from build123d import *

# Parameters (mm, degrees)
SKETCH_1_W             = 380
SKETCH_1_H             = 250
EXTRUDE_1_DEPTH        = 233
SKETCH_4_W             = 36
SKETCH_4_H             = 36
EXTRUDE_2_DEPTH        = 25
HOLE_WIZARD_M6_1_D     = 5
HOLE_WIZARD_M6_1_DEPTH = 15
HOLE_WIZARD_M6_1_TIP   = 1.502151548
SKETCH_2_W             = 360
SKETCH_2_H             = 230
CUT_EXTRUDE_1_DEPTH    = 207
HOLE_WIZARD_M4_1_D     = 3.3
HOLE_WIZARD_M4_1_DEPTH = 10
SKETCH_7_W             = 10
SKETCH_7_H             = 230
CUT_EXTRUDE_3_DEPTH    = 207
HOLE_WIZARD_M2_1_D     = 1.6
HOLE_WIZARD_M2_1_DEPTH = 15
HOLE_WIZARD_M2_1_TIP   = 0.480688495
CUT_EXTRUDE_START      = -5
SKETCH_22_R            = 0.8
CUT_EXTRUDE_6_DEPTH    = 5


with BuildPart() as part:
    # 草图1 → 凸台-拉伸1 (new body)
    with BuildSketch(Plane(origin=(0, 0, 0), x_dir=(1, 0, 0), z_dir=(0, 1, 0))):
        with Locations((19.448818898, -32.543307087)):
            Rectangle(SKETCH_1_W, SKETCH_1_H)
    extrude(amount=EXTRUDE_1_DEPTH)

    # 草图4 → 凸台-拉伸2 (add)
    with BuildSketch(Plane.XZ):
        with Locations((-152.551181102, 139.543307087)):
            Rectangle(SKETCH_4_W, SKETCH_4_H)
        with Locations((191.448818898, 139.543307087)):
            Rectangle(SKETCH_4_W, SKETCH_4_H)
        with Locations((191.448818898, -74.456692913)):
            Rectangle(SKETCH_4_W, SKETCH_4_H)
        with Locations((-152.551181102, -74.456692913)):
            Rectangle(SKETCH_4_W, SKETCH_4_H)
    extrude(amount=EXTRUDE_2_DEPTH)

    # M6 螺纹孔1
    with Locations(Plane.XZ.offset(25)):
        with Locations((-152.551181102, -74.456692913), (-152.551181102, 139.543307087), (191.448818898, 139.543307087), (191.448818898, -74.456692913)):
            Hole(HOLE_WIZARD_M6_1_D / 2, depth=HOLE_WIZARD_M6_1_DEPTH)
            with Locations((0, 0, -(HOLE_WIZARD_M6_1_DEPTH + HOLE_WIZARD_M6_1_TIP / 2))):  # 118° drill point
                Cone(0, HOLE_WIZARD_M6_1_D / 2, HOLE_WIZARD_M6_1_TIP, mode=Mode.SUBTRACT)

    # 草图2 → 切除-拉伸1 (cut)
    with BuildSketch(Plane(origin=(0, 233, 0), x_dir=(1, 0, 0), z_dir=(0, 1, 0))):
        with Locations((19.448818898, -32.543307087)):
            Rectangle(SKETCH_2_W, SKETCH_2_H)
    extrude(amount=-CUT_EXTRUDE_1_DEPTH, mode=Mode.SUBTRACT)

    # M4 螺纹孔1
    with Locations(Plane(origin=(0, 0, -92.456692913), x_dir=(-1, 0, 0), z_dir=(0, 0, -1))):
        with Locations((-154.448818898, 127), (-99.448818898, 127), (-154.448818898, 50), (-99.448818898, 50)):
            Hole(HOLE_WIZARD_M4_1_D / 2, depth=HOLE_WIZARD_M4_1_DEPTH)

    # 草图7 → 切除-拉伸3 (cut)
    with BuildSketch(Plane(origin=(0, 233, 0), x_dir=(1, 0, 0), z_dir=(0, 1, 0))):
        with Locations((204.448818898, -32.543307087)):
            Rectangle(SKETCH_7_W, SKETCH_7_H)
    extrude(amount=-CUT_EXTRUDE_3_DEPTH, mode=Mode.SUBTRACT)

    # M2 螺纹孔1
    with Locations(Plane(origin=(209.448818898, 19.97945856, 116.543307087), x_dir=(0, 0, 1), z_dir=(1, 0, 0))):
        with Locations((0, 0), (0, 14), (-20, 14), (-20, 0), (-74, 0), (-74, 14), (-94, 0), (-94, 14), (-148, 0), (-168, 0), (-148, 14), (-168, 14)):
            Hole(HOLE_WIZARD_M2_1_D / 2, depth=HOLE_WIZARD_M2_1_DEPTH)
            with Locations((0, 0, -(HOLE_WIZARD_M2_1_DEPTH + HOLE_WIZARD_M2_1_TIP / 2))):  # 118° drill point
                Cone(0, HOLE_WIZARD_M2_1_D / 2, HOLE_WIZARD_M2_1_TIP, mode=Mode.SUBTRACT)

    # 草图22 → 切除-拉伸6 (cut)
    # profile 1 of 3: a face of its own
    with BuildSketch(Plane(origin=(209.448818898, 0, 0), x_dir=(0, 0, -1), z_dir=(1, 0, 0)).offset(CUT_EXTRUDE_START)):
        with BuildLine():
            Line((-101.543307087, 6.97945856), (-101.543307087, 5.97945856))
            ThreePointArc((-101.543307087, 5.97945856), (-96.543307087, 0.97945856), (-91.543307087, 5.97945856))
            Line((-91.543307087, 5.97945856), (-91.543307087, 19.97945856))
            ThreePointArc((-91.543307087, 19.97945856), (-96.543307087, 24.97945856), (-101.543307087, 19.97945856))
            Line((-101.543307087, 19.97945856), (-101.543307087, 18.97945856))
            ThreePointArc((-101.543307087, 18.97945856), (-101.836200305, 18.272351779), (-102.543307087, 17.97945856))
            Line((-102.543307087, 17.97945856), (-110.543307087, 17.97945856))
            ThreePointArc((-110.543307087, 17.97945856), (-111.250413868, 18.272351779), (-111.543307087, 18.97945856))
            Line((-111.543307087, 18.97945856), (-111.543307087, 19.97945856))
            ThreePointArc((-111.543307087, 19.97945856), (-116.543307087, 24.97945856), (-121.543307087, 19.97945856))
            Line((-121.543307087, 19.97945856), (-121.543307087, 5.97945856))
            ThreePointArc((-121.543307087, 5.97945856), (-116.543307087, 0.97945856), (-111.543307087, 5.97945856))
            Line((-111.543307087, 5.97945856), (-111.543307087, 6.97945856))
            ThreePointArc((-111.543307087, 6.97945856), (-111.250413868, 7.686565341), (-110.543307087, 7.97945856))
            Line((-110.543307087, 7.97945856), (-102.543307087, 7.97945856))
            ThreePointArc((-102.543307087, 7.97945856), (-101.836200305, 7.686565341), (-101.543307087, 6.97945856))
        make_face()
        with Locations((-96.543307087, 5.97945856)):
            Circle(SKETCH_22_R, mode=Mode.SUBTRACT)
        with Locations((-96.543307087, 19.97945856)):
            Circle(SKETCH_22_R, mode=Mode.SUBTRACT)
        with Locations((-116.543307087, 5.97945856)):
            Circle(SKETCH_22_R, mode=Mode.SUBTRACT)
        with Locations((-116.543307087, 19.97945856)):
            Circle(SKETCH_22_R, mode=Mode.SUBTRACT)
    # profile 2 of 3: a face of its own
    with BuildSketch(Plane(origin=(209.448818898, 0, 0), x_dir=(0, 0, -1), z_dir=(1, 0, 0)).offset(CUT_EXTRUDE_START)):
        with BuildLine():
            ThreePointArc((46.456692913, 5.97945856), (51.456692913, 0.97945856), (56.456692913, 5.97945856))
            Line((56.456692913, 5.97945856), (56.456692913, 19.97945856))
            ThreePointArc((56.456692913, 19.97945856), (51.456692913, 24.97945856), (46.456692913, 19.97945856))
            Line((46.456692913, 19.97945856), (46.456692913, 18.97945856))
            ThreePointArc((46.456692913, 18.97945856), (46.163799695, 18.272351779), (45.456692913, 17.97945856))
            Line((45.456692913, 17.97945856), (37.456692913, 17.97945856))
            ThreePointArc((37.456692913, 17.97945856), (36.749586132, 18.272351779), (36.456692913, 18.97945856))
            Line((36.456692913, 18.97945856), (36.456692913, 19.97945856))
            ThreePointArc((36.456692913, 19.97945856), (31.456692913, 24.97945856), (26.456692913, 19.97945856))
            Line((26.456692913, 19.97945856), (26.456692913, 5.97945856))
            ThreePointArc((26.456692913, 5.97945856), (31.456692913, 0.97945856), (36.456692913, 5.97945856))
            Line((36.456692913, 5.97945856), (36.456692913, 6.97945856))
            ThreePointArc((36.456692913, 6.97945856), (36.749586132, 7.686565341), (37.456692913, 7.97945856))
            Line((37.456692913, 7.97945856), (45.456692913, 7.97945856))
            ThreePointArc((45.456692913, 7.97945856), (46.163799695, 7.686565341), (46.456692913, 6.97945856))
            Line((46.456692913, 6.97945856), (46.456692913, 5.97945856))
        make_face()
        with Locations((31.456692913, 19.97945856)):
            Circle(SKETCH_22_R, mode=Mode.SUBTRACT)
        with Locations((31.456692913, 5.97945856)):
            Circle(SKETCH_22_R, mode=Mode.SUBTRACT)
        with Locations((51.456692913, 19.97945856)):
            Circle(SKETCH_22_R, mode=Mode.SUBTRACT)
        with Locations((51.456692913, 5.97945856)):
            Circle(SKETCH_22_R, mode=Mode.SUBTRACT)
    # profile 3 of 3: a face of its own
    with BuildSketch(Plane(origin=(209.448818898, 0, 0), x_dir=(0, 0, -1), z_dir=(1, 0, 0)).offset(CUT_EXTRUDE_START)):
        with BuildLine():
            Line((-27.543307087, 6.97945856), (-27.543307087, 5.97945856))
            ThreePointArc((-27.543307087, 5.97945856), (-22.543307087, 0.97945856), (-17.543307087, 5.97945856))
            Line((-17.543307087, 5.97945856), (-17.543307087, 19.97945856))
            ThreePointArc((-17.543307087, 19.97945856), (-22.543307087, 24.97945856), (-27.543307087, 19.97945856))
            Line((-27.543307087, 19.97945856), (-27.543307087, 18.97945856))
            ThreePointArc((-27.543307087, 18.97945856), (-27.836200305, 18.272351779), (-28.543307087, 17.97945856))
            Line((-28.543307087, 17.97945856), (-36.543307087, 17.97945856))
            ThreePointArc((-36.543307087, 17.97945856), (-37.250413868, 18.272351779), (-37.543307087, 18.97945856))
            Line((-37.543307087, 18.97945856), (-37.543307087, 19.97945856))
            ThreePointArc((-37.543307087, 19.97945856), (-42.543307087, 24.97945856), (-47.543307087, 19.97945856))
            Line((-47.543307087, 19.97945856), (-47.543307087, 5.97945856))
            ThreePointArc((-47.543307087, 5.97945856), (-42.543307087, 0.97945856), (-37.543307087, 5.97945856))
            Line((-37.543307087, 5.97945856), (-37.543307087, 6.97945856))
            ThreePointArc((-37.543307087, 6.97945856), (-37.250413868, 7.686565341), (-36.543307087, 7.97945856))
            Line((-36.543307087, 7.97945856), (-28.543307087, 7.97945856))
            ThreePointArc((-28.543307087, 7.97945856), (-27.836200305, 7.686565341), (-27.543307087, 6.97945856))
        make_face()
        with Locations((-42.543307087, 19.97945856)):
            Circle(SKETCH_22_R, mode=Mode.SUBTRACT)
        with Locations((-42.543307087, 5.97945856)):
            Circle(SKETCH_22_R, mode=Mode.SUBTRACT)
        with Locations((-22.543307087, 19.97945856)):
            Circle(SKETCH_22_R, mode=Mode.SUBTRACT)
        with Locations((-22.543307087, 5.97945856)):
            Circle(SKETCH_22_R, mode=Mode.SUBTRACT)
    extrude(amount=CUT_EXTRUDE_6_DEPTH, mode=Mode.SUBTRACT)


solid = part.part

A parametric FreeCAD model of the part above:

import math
import FreeCAD as App
import Part
import Sketcher
Q = App.Units.Quantity


def add_polygon(sketch, points):
    """Adds a closed chain of lines whose ends are joined by coincident constraints."""
    first, n = sketch.GeometryCount, len(points)
    for a, b in zip(points, points[1:] + points[:1]):
        sketch.addGeometry(Part.LineSegment(App.Vector(*a, 0), App.Vector(*b, 0)), False)
    for i in range(n):
        sketch.addConstraint(Sketcher.Constraint("Coincident", first + i, 2, first + (i + 1) % n, 1))

doc = App.newDocument("Part")
body = doc.addObject("PartDesign::Body", "Body")

sketch1 = body.newObject("Sketcher::SketchObject", "Sketch")
sketch1.AttachmentSupport = (doc.getObject("XZ_Plane"), [""])
sketch1.MapMode = "FlatFace"
add_polygon(sketch1, [(-171, -92), (-171, 158), (209, 158), (209, -92)])
sketch1.addConstraint(Sketcher.Constraint("Vertical", 0))
sketch1.addConstraint(Sketcher.Constraint("Horizontal", 1))
sketch1.addConstraint(Sketcher.Constraint("Vertical", 2))
sketch1.addConstraint(Sketcher.Constraint("Horizontal", 3))
sketch1.addConstraint(Sketcher.Constraint("DistanceX", 1, 1, 1, 2, Q("380 mm")))
sketch1.addConstraint(Sketcher.Constraint("DistanceY", 0, 1, 0, 2, Q("250 mm")))
sketch1.addConstraint(Sketcher.Constraint("DistanceX", 0, 2, -1, 1, Q("170.551181 mm")))
sketch1.addConstraint(Sketcher.Constraint("DistanceY", -1, 1, 0, 2, Q("157.543307 mm")))
pad1 = body.newObject("PartDesign::Pad", "Pad")
pad1.Profile = sketch1
pad1.Length = 233
pad1.Reversed = True

sketch2 = body.newObject("Sketcher::SketchObject", "Sketch001")
sketch2.AttachmentSupport = (doc.getObject("XZ_Plane"), [""])
sketch2.MapMode = "FlatFace"
add_polygon(sketch2, [(-171, 158), (-171, 122), (-135, 122), (-135, 158)])
add_polygon(sketch2, [(173, 158), (173, 122), (209, 122), (209, 158)])
add_polygon(sketch2, [(173, -56), (173, -92), (209, -92), (209, -56)])
add_polygon(sketch2, [(-171, -56), (-171, -92), (-135, -92), (-135, -56)])
sketch2.addConstraint(Sketcher.Constraint("Vertical", 0))
sketch2.addConstraint(Sketcher.Constraint("Horizontal", 1))
sketch2.addConstraint(Sketcher.Constraint("Vertical", 2))
sketch2.addConstraint(Sketcher.Constraint("Horizontal", 3))
sketch2.addConstraint(Sketcher.Constraint("Vertical", 4))
sketch2.addConstraint(Sketcher.Constraint("Horizontal", 5))
sketch2.addConstraint(Sketcher.Constraint("Vertical", 6))
sketch2.addConstraint(Sketcher.Constraint("Horizontal", 7))
sketch2.addConstraint(Sketcher.Constraint("Vertical", 8))
sketch2.addConstraint(Sketcher.Constraint("Horizontal", 9))
sketch2.addConstraint(Sketcher.Constraint("Vertical", 10))
sketch2.addConstraint(Sketcher.Constraint("Horizontal", 11))
sketch2.addConstraint(Sketcher.Constraint("Vertical", 12))
sketch2.addConstraint(Sketcher.Constraint("Horizontal", 13))
sketch2.addConstraint(Sketcher.Constraint("Vertical", 14))
sketch2.addConstraint(Sketcher.Constraint("Horizontal", 15))
sketch2.addConstraint(Sketcher.Constraint("Horizontal", 1, 2, 4, 2))
sketch2.addConstraint(Sketcher.Constraint("Horizontal", 3, 2, 6, 2))
sketch2.addConstraint(Sketcher.Constraint("Horizontal", 9, 2, 12, 2))
sketch2.addConstraint(Sketcher.Constraint("Horizontal", 11, 2, 14, 2))
sketch2.addConstraint(Sketcher.Constraint("Vertical", 7, 2, 8, 2))
sketch2.addConstraint(Sketcher.Constraint("Vertical", 6, 2, 9, 2))
sketch2.addConstraint(Sketcher.Constraint("Vertical", 3, 2, 12, 2))
sketch2.addConstraint(Sketcher.Constraint("Vertical", 2, 2, 13, 2))
sketch2.addConstraint(Sketcher.Constraint("Equal", 3, 5))
sketch2.addConstraint(Sketcher.Constraint("Equal", 15, 0))
sketch2.addConstraint(Sketcher.Constraint("Equal", 6, 8))
sketch2.addConstraint(Sketcher.Constraint("DistanceX", 1, 1, 1, 2, Q("36 mm")))
sketch2.addConstraint(Sketcher.Constraint("DistanceX", 1, 2, 4, 2, Q("308 mm")))
sketch2.addConstraint(Sketcher.Constraint("DistanceY", 8, 2, 4, 2, Q("214 mm")))
sketch2.addConstraint(Sketcher.Constraint("DistanceX", 0, 2, -1, 1, Q("170.551181 mm")))
sketch2.addConstraint(Sketcher.Constraint("DistanceY", -1, 1, 0, 2, Q("121.543307 mm")))
pad2 = body.newObject("PartDesign::Pad", "Pad001")
pad2.Profile = sketch2
pad2.Length = 25

sketch3 = body.newObject("Sketcher::SketchObject", "Sketch002")
sketch3.AttachmentSupport = (doc.getObject("XZ_Plane"), [""])
sketch3.MapMode = "FlatFace"
sketch3.AttachmentOffset = App.Placement(App.Vector(0, 0, 25), App.Rotation())
sketch3.addGeometry(Part.Circle(App.Vector(-152.6, -74.5, 0), App.Vector(0, 0, 1), 2.5), False)
sketch3.addGeometry(Part.Circle(App.Vector(-152.6, 139.5, 0), App.Vector(0, 0, 1), 2.5), False)
sketch3.addGeometry(Part.Circle(App.Vector(191.4, 139.5, 0), App.Vector(0, 0, 1), 2.5), False)
sketch3.addGeometry(Part.Circle(App.Vector(191.4, -74.5, 0), App.Vector(0, 0, 1), 2.5), False)
sketch3.addConstraint(Sketcher.Constraint("Equal", 0, 1))
sketch3.addConstraint(Sketcher.Constraint("Equal", 1, 2))
sketch3.addConstraint(Sketcher.Constraint("Equal", 2, 3))
sketch3.addConstraint(Sketcher.Constraint("Horizontal", 1, 3, 2, 3))
sketch3.addConstraint(Sketcher.Constraint("Horizontal", 0, 3, 3, 3))
sketch3.addConstraint(Sketcher.Constraint("Vertical", 0, 3, 1, 3))
sketch3.addConstraint(Sketcher.Constraint("Vertical", 2, 3, 3, 3))
sketch3.addConstraint(Sketcher.Constraint("Diameter", 0, Q("5 mm")))
sketch3.addConstraint(Sketcher.Constraint("DistanceY", 0, 3, 1, 3, Q("214 mm")))
sketch3.addConstraint(Sketcher.Constraint("DistanceX", 1, 3, 2, 3, Q("344 mm")))
sketch3.addConstraint(Sketcher.Constraint("DistanceX", 0, 3, -1, 1, Q("152.551181 mm")))
sketch3.addConstraint(Sketcher.Constraint("DistanceY", 0, 3, -1, 1, Q("74.456693 mm")))
doc.recompute()
hole = body.newObject("PartDesign::Hole", "Hole")
hole.Profile = sketch3
hole.ThreadType = "None"
hole.Diameter = 5
hole.DepthType = "Dimension"
hole.Depth = 15
hole.DrillPoint = "Angled"
hole.DrillPointAngle = 118

sketch4 = body.newObject("Sketcher::SketchObject", "Sketch003")
sketch4.AttachmentSupport = (doc.getObject("XZ_Plane"), [""])
sketch4.MapMode = "FlatFace"
sketch4.AttachmentOffset = App.Placement(App.Vector(0, 0, -233), App.Rotation())
add_polygon(sketch4, [(-161, -82), (-161, 148), (199, 148), (199, -82)])
sketch4.addConstraint(Sketcher.Constraint("Vertical", 0))
sketch4.addConstraint(Sketcher.Constraint("Horizontal", 1))
sketch4.addConstraint(Sketcher.Constraint("Vertical", 2))
sketch4.addConstraint(Sketcher.Constraint("Horizontal", 3))
sketch4.addConstraint(Sketcher.Constraint("DistanceX", 1, 1, 1, 2, Q("360 mm")))
sketch4.addConstraint(Sketcher.Constraint("DistanceY", 0, 1, 0, 2, Q("230 mm")))
sketch4.addConstraint(Sketcher.Constraint("DistanceX", 0, 2, -1, 1, Q("160.551181 mm")))
sketch4.addConstraint(Sketcher.Constraint("DistanceY", -1, 1, 0, 2, Q("147.543307 mm")))
pocket1 = body.newObject("PartDesign::Pocket", "Pocket")
pocket1.Profile = sketch4
pocket1.Length = 207
pocket1.Reversed = True

sketch5 = body.newObject("Sketcher::SketchObject", "Sketch004")
sketch5.AttachmentSupport = (doc.getObject("XY_Plane"), [""])
sketch5.MapMode = "FlatFace"
sketch5.AttachmentOffset = App.Placement(App.Vector(0, 0, -92.456693), App.Rotation())
sketch5.addGeometry(Part.Circle(App.Vector(154.4, 127, 0), App.Vector(0, 0, 1), 1.6), False)
sketch5.addGeometry(Part.Circle(App.Vector(99.4, 127, 0), App.Vector(0, 0, 1), 1.6), False)
sketch5.addGeometry(Part.Circle(App.Vector(154.4, 50, 0), App.Vector(0, 0, 1), 1.6), False)
sketch5.addGeometry(Part.Circle(App.Vector(99.4, 50, 0), App.Vector(0, 0, 1), 1.6), False)
sketch5.addConstraint(Sketcher.Constraint("Equal", 0, 1))
sketch5.addConstraint(Sketcher.Constraint("Equal", 1, 2))
sketch5.addConstraint(Sketcher.Constraint("Equal", 2, 3))
sketch5.addConstraint(Sketcher.Constraint("Horizontal", 0, 3, 1, 3))
sketch5.addConstraint(Sketcher.Constraint("Horizontal", 2, 3, 3, 3))
sketch5.addConstraint(Sketcher.Constraint("Vertical", 0, 3, 2, 3))
sketch5.addConstraint(Sketcher.Constraint("Vertical", 1, 3, 3, 3))
sketch5.addConstraint(Sketcher.Constraint("Diameter", 0, Q("3.3 mm")))
sketch5.addConstraint(Sketcher.Constraint("DistanceY", -1, 1, 0, 3, Q("127 mm")))
sketch5.addConstraint(Sketcher.Constraint("DistanceY", -1, 1, 2, 3, Q("50 mm")))
sketch5.addConstraint(Sketcher.Constraint("DistanceX", 1, 3, 0, 3, Q("55 mm")))
sketch5.addConstraint(Sketcher.Constraint("DistanceX", -1, 1, 0, 3, Q("154.448819 mm")))
doc.recompute()
hole2 = body.newObject("PartDesign::Hole", "Hole001")
hole2.Profile = sketch5
hole2.ThreadType = "None"
hole2.Diameter = 3.3
hole2.DepthType = "Dimension"
hole2.Depth = 10
hole2.DrillPoint = "Flat"
hole2.Reversed = True

sketch6 = body.newObject("Sketcher::SketchObject", "Sketch005")
sketch6.AttachmentSupport = (doc.getObject("XZ_Plane"), [""])
sketch6.MapMode = "FlatFace"
sketch6.AttachmentOffset = App.Placement(App.Vector(0, 0, -233), App.Rotation())
add_polygon(sketch6, [(199, -82), (199, 148), (209, 148), (209, -82)])
sketch6.addConstraint(Sketcher.Constraint("Vertical", 0))
sketch6.addConstraint(Sketcher.Constraint("Horizontal", 1))
sketch6.addConstraint(Sketcher.Constraint("Vertical", 2))
sketch6.addConstraint(Sketcher.Constraint("Horizontal", 3))
sketch6.addConstraint(Sketcher.Constraint("DistanceX", 1, 1, 1, 2, Q("10 mm")))
sketch6.addConstraint(Sketcher.Constraint("DistanceY", 0, 1, 0, 2, Q("230 mm")))
sketch6.addConstraint(Sketcher.Constraint("DistanceX", -1, 1, 0, 2, Q("199.448819 mm")))
sketch6.addConstraint(Sketcher.Constraint("DistanceY", -1, 1, 0, 2, Q("147.543307 mm")))
pocket2 = body.newObject("PartDesign::Pocket", "Pocket001")
pocket2.Profile = sketch6
pocket2.Length = 207
pocket2.Reversed = True

sketch7 = body.newObject("Sketcher::SketchObject", "Sketch006")
sketch7.AttachmentSupport = (doc.getObject("YZ_Plane"), [""])
sketch7.MapMode = "FlatFace"
sketch7.AttachmentOffset = App.Placement(App.Vector(0, 0, 209.448819), App.Rotation())
sketch7.addGeometry(Part.Circle(App.Vector(20, 116.5, 0), App.Vector(0, 0, 1), 0.8), False)
sketch7.addGeometry(Part.Circle(App.Vector(6, 116.5, 0), App.Vector(0, 0, 1), 0.8), False)
sketch7.addGeometry(Part.Circle(App.Vector(6, 96.5, 0), App.Vector(0, 0, 1), 0.8), False)
sketch7.addGeometry(Part.Circle(App.Vector(20, 96.5, 0), App.Vector(0, 0, 1), 0.8), False)
sketch7.addGeometry(Part.Circle(App.Vector(20, 42.5, 0), App.Vector(0, 0, 1), 0.8), False)
sketch7.addGeometry(Part.Circle(App.Vector(6, 42.5, 0), App.Vector(0, 0, 1), 0.8), False)
sketch7.addGeometry(Part.Circle(App.Vector(20, 22.5, 0), App.Vector(0, 0, 1), 0.8), False)
sketch7.addGeometry(Part.Circle(App.Vector(6, 22.5, 0), App.Vector(0, 0, 1), 0.8), False)
sketch7.addGeometry(Part.Circle(App.Vector(20, -31.5, 0), App.Vector(0, 0, 1), 0.8), False)
sketch7.addGeometry(Part.Circle(App.Vector(20, -51.5, 0), App.Vector(0, 0, 1), 0.8), False)
sketch7.addGeometry(Part.Circle(App.Vector(6, -31.5, 0), App.Vector(0, 0, 1), 0.8), False)
sketch7.addGeometry(Part.Circle(App.Vector(6, -51.5, 0), App.Vector(0, 0, 1), 0.8), False)
sketch7.addConstraint(Sketcher.Constraint("Equal", 0, 1))
sketch7.addConstraint(Sketcher.Constraint("Equal", 1, 2))
sketch7.addConstraint(Sketcher.Constraint("Equal", 2, 3))
sketch7.addConstraint(Sketcher.Constraint("Equal", 3, 4))
sketch7.addConstraint(Sketcher.Constraint("Equal", 4, 5))
sketch7.addConstraint(Sketcher.Constraint("Equal", 5, 6))
sketch7.addConstraint(Sketcher.Constraint("Equal", 6, 7))
sketch7.addConstraint(Sketcher.Constraint("Equal", 7, 8))
sketch7.addConstraint(Sketcher.Constraint("Equal", 8, 9))
sketch7.addConstraint(Sketcher.Constraint("Equal", 9, 10))
sketch7.addConstraint(Sketcher.Constraint("Equal", 10, 11))
sketch7.addConstraint(Sketcher.Constraint("Horizontal", 0, 3, 1, 3))
sketch7.addConstraint(Sketcher.Constraint("Horizontal", 2, 3, 3, 3))
sketch7.addConstraint(Sketcher.Constraint("Horizontal", 4, 3, 5, 3))
sketch7.addConstraint(Sketcher.Constraint("Horizontal", 6, 3, 7, 3))
sketch7.addConstraint(Sketcher.Constraint("Horizontal", 8, 3, 10, 3))
sketch7.addConstraint(Sketcher.Constraint("Horizontal", 9, 3, 11, 3))
sketch7.addConstraint(Sketcher.Constraint("Vertical", 1, 3, 2, 3))
sketch7.addConstraint(Sketcher.Constraint("Vertical", 0, 3, 3, 3))
sketch7.addConstraint(Sketcher.Constraint("Vertical", 3, 3, 4, 3))
sketch7.addConstraint(Sketcher.Constraint("Vertical", 2, 3, 5, 3))
sketch7.addConstraint(Sketcher.Constraint("Vertical", 4, 3, 6, 3))
sketch7.addConstraint(Sketcher.Constraint("Vertical", 5, 3, 7, 3))
sketch7.addConstraint(Sketcher.Constraint("Vertical", 6, 3, 8, 3))
sketch7.addConstraint(Sketcher.Constraint("Vertical", 8, 3, 9, 3))
sketch7.addConstraint(Sketcher.Constraint("Vertical", 7, 3, 10, 3))
sketch7.addConstraint(Sketcher.Constraint("Vertical", 10, 3, 11, 3))
sketch7.addConstraint(Sketcher.Constraint("Diameter", 0, Q("1.6 mm")))
sketch7.addConstraint(Sketcher.Constraint("DistanceX", 1, 3, 0, 3, Q("14 mm")))
sketch7.addConstraint(Sketcher.Constraint("DistanceY", 2, 3, 1, 3, Q("20 mm")))
sketch7.addConstraint(Sketcher.Constraint("DistanceY", 4, 3, 3, 3, Q("54 mm")))
sketch7.addConstraint(Sketcher.Constraint("DistanceY", 6, 3, 4, 3, Q("20 mm")))
sketch7.addConstraint(Sketcher.Constraint("DistanceY", 8, 3, 6, 3, Q("54 mm")))
sketch7.addConstraint(Sketcher.Constraint("DistanceY", 9, 3, 8, 3, Q("20 mm")))
sketch7.addConstraint(Sketcher.Constraint("DistanceX", -1, 1, 0, 3, Q("19.979459 mm")))
sketch7.addConstraint(Sketcher.Constraint("DistanceY", -1, 1, 0, 3, Q("116.543307 mm")))
doc.recompute()
hole3 = body.newObject("PartDesign::Hole", "Hole002")
hole3.Profile = sketch7
hole3.ThreadType = "None"
hole3.Diameter = 1.6
hole3.DepthType = "Dimension"
hole3.Depth = 15
hole3.DrillPoint = "Angled"
hole3.DrillPointAngle = 118

sketch8 = body.newObject("Sketcher::SketchObject", "Sketch007")
sketch8.AttachmentSupport = (doc.getObject("YZ_Plane"), [""])
sketch8.MapMode = "FlatFace"
sketch8.AttachmentOffset = App.Placement(App.Vector(0, 0, 204.448819), App.Rotation())
sketch8.addGeometry(Part.LineSegment(App.Vector(7, 101.5, 0), App.Vector(6, 101.5, 0)), False)
sketch8.addGeometry(Part.ArcOfCircle(Part.Circle(App.Vector(6, 96.5, 0), App.Vector(0, 0, 1), 5), math.radians(90), math.radians(270)), False)
sketch8.addGeometry(Part.LineSegment(App.Vector(6, 91.5, 0), App.Vector(20, 91.5, 0)), False)
sketch8.addGeometry(Part.ArcOfCircle(Part.Circle(App.Vector(20, 96.5, 0), App.Vector(0, 0, 1), 5), math.radians(-90), math.radians(90)), False)
sketch8.addGeometry(Part.LineSegment(App.Vector(20, 101.5, 0), App.Vector(19, 101.5, 0)), False)
sketch8.addGeometry(Part.ArcOfCircle(Part.Circle(App.Vector(19, 102.5, 0), App.Vector(0, 0, 1), 1), math.radians(180), math.radians(270)), False)
sketch8.addGeometry(Part.LineSegment(App.Vector(18, 102.5, 0), App.Vector(18, 110.5, 0)), False)
sketch8.addGeometry(Part.ArcOfCircle(Part.Circle(App.Vector(19, 110.5, 0), App.Vector(0, 0, 1), 1), math.radians(90), math.radians(180)), False)
sketch8.addGeometry(Part.LineSegment(App.Vector(19, 111.5, 0), App.Vector(20, 111.5, 0)), False)
sketch8.addGeometry(Part.ArcOfCircle(Part.Circle(App.Vector(20, 116.5, 0), App.Vector(0, 0, 1), 5), math.radians(-90), math.radians(90)), False)
sketch8.addGeometry(Part.LineSegment(App.Vector(20, 121.5, 0), App.Vector(6, 121.5, 0)), False)
sketch8.addGeometry(Part.ArcOfCircle(Part.Circle(App.Vector(6, 116.5, 0), App.Vector(0, 0, 1), 5), math.radians(90), math.radians(270)), False)
sketch8.addGeometry(Part.LineSegment(App.Vector(6, 111.5, 0), App.Vector(7, 111.5, 0)), False)
sketch8.addGeometry(Part.ArcOfCircle(Part.Circle(App.Vector(7, 110.5, 0), App.Vector(0, 0, 1), 1), math.radians(0), math.radians(90)), False)
sketch8.addGeometry(Part.LineSegment(App.Vector(8, 110.5, 0), App.Vector(8, 102.5, 0)), False)
sketch8.addGeometry(Part.ArcOfCircle(Part.Circle(App.Vector(7, 102.5, 0), App.Vector(0, 0, 1), 1), math.radians(-90), math.radians(0)), False)
sketch8.addGeometry(Part.Circle(App.Vector(6, 116.5, 0), App.Vector(0, 0, 1), 0.8), False)
sketch8.addGeometry(Part.Circle(App.Vector(6, 96.5, 0), App.Vector(0, 0, 1), 0.8), False)
sketch8.addGeometry(Part.Circle(App.Vector(20, 116.5, 0), App.Vector(0, 0, 1), 0.8), False)
sketch8.addGeometry(Part.Circle(App.Vector(20, 96.5, 0), App.Vector(0, 0, 1), 0.8), False)
sketch8.addGeometry(Part.ArcOfCircle(Part.Circle(App.Vector(6, -51.5, 0), App.Vector(0, 0, 1), 5), math.radians(90), math.radians(270)), False)
sketch8.addGeometry(Part.LineSegment(App.Vector(6, -56.5, 0), App.Vector(20, -56.5, 0)), False)
sketch8.addGeometry(Part.ArcOfCircle(Part.Circle(App.Vector(20, -51.5, 0), App.Vector(0, 0, 1), 5), math.radians(-90), math.radians(90)), False)
sketch8.addGeometry(Part.LineSegment(App.Vector(20, -46.5, 0), App.Vector(19, -46.5, 0)), False)
sketch8.addGeometry(Part.ArcOfCircle(Part.Circle(App.Vector(19, -45.5, 0), App.Vector(0, 0, 1), 1), math.radians(180), math.radians(270)), False)
sketch8.addGeometry(Part.LineSegment(App.Vector(18, -45.5, 0), App.Vector(18, -37.5, 0)), False)
sketch8.addGeometry(Part.ArcOfCircle(Part.Circle(App.Vector(19, -37.5, 0), App.Vector(0, 0, 1), 1), math.radians(90), math.radians(180)), False)
sketch8.addGeometry(Part.LineSegment(App.Vector(19, -36.5, 0), App.Vector(20, -36.5, 0)), False)
sketch8.addGeometry(Part.ArcOfCircle(Part.Circle(App.Vector(20, -31.5, 0), App.Vector(0, 0, 1), 5), math.radians(-90), math.radians(90)), False)
sketch8.addGeometry(Part.LineSegment(App.Vector(20, -26.5, 0), App.Vector(6, -26.5, 0)), False)
sketch8.addGeometry(Part.ArcOfCircle(Part.Circle(App.Vector(6, -31.5, 0), App.Vector(0, 0, 1), 5), math.radians(90), math.radians(270)), False)
sketch8.addGeometry(Part.LineSegment(App.Vector(6, -36.5, 0), App.Vector(7, -36.5, 0)), False)
sketch8.addGeometry(Part.ArcOfCircle(Part.Circle(App.Vector(7, -37.5, 0), App.Vector(0, 0, 1), 1), math.radians(0), math.radians(90)), False)
sketch8.addGeometry(Part.LineSegment(App.Vector(8, -37.5, 0), App.Vector(8, -45.5, 0)), False)
sketch8.addGeometry(Part.ArcOfCircle(Part.Circle(App.Vector(7, -45.5, 0), App.Vector(0, 0, 1), 1), math.radians(-90), math.radians(0)), False)
sketch8.addGeometry(Part.LineSegment(App.Vector(7, -46.5, 0), App.Vector(6, -46.5, 0)), False)
sketch8.addGeometry(Part.Circle(App.Vector(6, -31.5, 0), App.Vector(0, 0, 1), 0.8), False)
sketch8.addGeometry(Part.Circle(App.Vector(6, -51.5, 0), App.Vector(0, 0, 1), 0.8), False)
sketch8.addGeometry(Part.Circle(App.Vector(20, -31.5, 0), App.Vector(0, 0, 1), 0.8), False)
sketch8.addGeometry(Part.Circle(App.Vector(20, -51.5, 0), App.Vector(0, 0, 1), 0.8), False)
sketch8.addGeometry(Part.LineSegment(App.Vector(7, 27.5, 0), App.Vector(6, 27.5, 0)), False)
sketch8.addGeometry(Part.ArcOfCircle(Part.Circle(App.Vector(6, 22.5, 0), App.Vector(0, 0, 1), 5), math.radians(90), math.radians(270)), False)
sketch8.addGeometry(Part.LineSegment(App.Vector(6, 17.5, 0), App.Vector(20, 17.5, 0)), False)
sketch8.addGeometry(Part.ArcOfCircle(Part.Circle(App.Vector(20, 22.5, 0), App.Vector(0, 0, 1), 5), math.radians(-90), math.radians(90)), False)
sketch8.addGeometry(Part.LineSegment(App.Vector(20, 27.5, 0), App.Vector(19, 27.5, 0)), False)
sketch8.addGeometry(Part.ArcOfCircle(Part.Circle(App.Vector(19, 28.5, 0), App.Vector(0, 0, 1), 1), math.radians(180), math.radians(270)), False)
sketch8.addGeometry(Part.LineSegment(App.Vector(18, 28.5, 0), App.Vector(18, 36.5, 0)), False)
sketch8.addGeometry(Part.ArcOfCircle(Part.Circle(App.Vector(19, 36.5, 0), App.Vector(0, 0, 1), 1), math.radians(90), math.radians(180)), False)
sketch8.addGeometry(Part.LineSegment(App.Vector(19, 37.5, 0), App.Vector(20, 37.5, 0)), False)
sketch8.addGeometry(Part.ArcOfCircle(Part.Circle(App.Vector(20, 42.5, 0), App.Vector(0, 0, 1), 5), math.radians(-90), math.radians(90)), False)
sketch8.addGeometry(Part.LineSegment(App.Vector(20, 47.5, 0), App.Vector(6, 47.5, 0)), False)
sketch8.addGeometry(Part.ArcOfCircle(Part.Circle(App.Vector(6, 42.5, 0), App.Vector(0, 0, 1), 5), math.radians(90), math.radians(270)), False)
sketch8.addGeometry(Part.LineSegment(App.Vector(6, 37.5, 0), App.Vector(7, 37.5, 0)), False)
sketch8.addGeometry(Part.ArcOfCircle(Part.Circle(App.Vector(7, 36.5, 0), App.Vector(0, 0, 1), 1), math.radians(0), math.radians(90)), False)
sketch8.addGeometry(Part.LineSegment(App.Vector(8, 36.5, 0), App.Vector(8, 28.5, 0)), False)
sketch8.addGeometry(Part.ArcOfCircle(Part.Circle(App.Vector(7, 28.5, 0), App.Vector(0, 0, 1), 1), math.radians(-90), math.radians(0)), False)
sketch8.addGeometry(Part.Circle(App.Vector(6, 42.5, 0), App.Vector(0, 0, 1), 0.8), False)
sketch8.addGeometry(Part.Circle(App.Vector(6, 22.5, 0), App.Vector(0, 0, 1), 0.8), False)
sketch8.addGeometry(Part.Circle(App.Vector(20, 42.5, 0), App.Vector(0, 0, 1), 0.8), False)
sketch8.addGeometry(Part.Circle(App.Vector(20, 22.5, 0), App.Vector(0, 0, 1), 0.8), False)
sketch8.addConstraint(Sketcher.Constraint("Tangent", 0, 2, 1, 1))
sketch8.addConstraint(Sketcher.Constraint("Tangent", 1, 2, 2, 1))
sketch8.addConstraint(Sketcher.Constraint("Tangent", 2, 2, 3, 1))
sketch8.addConstraint(Sketcher.Constraint("Tangent", 3, 2, 4, 1))
sketch8.addConstraint(Sketcher.Constraint("Tangent", 4, 2, 5, 2))
sketch8.addConstraint(Sketcher.Constraint("Tangent", 5, 1, 6, 1))
sketch8.addConstraint(Sketcher.Constraint("Tangent", 6, 2, 7, 2))
sketch8.addConstraint(Sketcher.Constraint("Tangent", 7, 1, 8, 1))
sketch8.addConstraint(Sketcher.Constraint("Tangent", 8, 2, 9, 1))
sketch8.addConstraint(Sketcher.Constraint("Tangent", 9, 2, 10, 1))
sketch8.addConstraint(Sketcher.Constraint("Tangent", 10, 2, 11, 1))
sketch8.addConstraint(Sketcher.Constraint("Tangent", 11, 2, 12, 1))
sketch8.addConstraint(Sketcher.Constraint("Tangent", 12, 2, 13, 2))
sketch8.addConstraint(Sketcher.Constraint("Tangent", 13, 1, 14, 1))
sketch8.addConstraint(Sketcher.Constraint("Tangent", 14, 2, 15, 2))
sketch8.addConstraint(Sketcher.Constraint("Tangent", 15, 1, 0, 1))
sketch8.addConstraint(Sketcher.Constraint("Tangent", 20, 2, 21, 1))
sketch8.addConstraint(Sketcher.Constraint("Tangent", 21, 2, 22, 1))
sketch8.addConstraint(Sketcher.Constraint("Tangent", 22, 2, 23, 1))
sketch8.addConstraint(Sketcher.Constraint("Tangent", 23, 2, 24, 2))
sketch8.addConstraint(Sketcher.Constraint("Tangent", 24, 1, 25, 1))
sketch8.addConstraint(Sketcher.Constraint("Tangent", 25, 2, 26, 2))
sketch8.addConstraint(Sketcher.Constraint("Tangent", 26, 1, 27, 1))
sketch8.addConstraint(Sketcher.Constraint("Tangent", 27, 2, 28, 1))
sketch8.addConstraint(Sketcher.Constraint("Tangent", 28, 2, 29, 1))
sketch8.addConstraint(Sketcher.Constraint("Tangent", 29, 2, 30, 1))
sketch8.addConstraint(Sketcher.Constraint("Tangent", 30, 2, 31, 1))
sketch8.addConstraint(Sketcher.Constraint("Tangent", 31, 2, 32, 2))
sketch8.addConstraint(Sketcher.Constraint("Tangent", 32, 1, 33, 1))
sketch8.addConstraint(Sketcher.Constraint("Tangent", 33, 2, 34, 2))
sketch8.addConstraint(Sketcher.Constraint("Tangent", 34, 1, 35, 1))
sketch8.addConstraint(Sketcher.Constraint("Tangent", 35, 2, 20, 1))
sketch8.addConstraint(Sketcher.Constraint("Tangent", 40, 2, 41, 1))
sketch8.addConstraint(Sketcher.Constraint("Tangent", 41, 2, 42, 1))
sketch8.addConstraint(Sketcher.Constraint("Tangent", 42, 2, 43, 1))
sketch8.addConstraint(Sketcher.Constraint("Tangent", 43, 2, 44, 1))
sketch8.addConstraint(Sketcher.Constraint("Tangent", 44, 2, 45, 2))
sketch8.addConstraint(Sketcher.Constraint("Tangent", 45, 1, 46, 1))
sketch8.addConstraint(Sketcher.Constraint("Tangent", 46, 2, 47, 2))
sketch8.addConstraint(Sketcher.Constraint("Tangent", 47, 1, 48, 1))
sketch8.addConstraint(Sketcher.Constraint("Tangent", 48, 2, 49, 1))
sketch8.addConstraint(Sketcher.Constraint("Tangent", 49, 2, 50, 1))
sketch8.addConstraint(Sketcher.Constraint("Tangent", 50, 2, 51, 1))
sketch8.addConstraint(Sketcher.Constraint("Tangent", 51, 2, 52, 1))
sketch8.addConstraint(Sketcher.Constraint("Tangent", 52, 2, 53, 2))
sketch8.addConstraint(Sketcher.Constraint("Tangent", 53, 1, 54, 1))
sketch8.addConstraint(Sketcher.Constraint("Tangent", 54, 2, 55, 2))
sketch8.addConstraint(Sketcher.Constraint("Tangent", 55, 1, 40, 1))
sketch8.addConstraint(Sketcher.Constraint("Horizontal", 0))
sketch8.addConstraint(Sketcher.Constraint("Horizontal", 2))
sketch8.addConstraint(Sketcher.Constraint("Horizontal", 4))
sketch8.addConstraint(Sketcher.Constraint("Vertical", 6))
sketch8.addConstraint(Sketcher.Constraint("Horizontal", 8))
sketch8.addConstraint(Sketcher.Constraint("Horizontal", 10))
sketch8.addConstraint(Sketcher.Constraint("Horizontal", 12))
sketch8.addConstraint(Sketcher.Constraint("Vertical", 14))
sketch8.addConstraint(Sketcher.Constraint("Horizontal", 21))
sketch8.addConstraint(Sketcher.Constraint("Horizontal", 23))
sketch8.addConstraint(Sketcher.Constraint("Vertical", 25))
sketch8.addConstraint(Sketcher.Constraint("Horizontal", 27))
sketch8.addConstraint(Sketcher.Constraint("Horizontal", 29))
sketch8.addConstraint(Sketcher.Constraint("Horizontal", 31))
sketch8.addConstraint(Sketcher.Constraint("Vertical", 33))
sketch8.addConstraint(Sketcher.Constraint("Horizontal", 35))
sketch8.addConstraint(Sketcher.Constraint("Horizontal", 40))
sketch8.addConstraint(Sketcher.Constraint("Horizontal", 42))
sketch8.addConstraint(Sketcher.Constraint("Horizontal", 44))
sketch8.addConstraint(Sketcher.Constraint("Vertical", 46))
sketch8.addConstraint(Sketcher.Constraint("Horizontal", 48))
sketch8.addConstraint(Sketcher.Constraint("Horizontal", 50))
sketch8.addConstraint(Sketcher.Constraint("Horizontal", 52))
sketch8.addConstraint(Sketcher.Constraint("Vertical", 54))
sketch8.addConstraint(Sketcher.Constraint("Coincident", 16, 3, 11, 3))
sketch8.addConstraint(Sketcher.Constraint("Coincident", 17, 3, 1, 3))
sketch8.addConstraint(Sketcher.Constraint("Coincident", 18, 3, 9, 3))
sketch8.addConstraint(Sketcher.Constraint("Coincident", 19, 3, 3, 3))
sketch8.addConstraint(Sketcher.Constraint("Coincident", 36, 3, 30, 3))
sketch8.addConstraint(Sketcher.Constraint("Coincident", 37, 3, 20, 3))
sketch8.addConstraint(Sketcher.Constraint("Coincident", 38, 3, 28, 3))
sketch8.addConstraint(Sketcher.Constraint("Coincident", 39, 3, 22, 3))
sketch8.addConstraint(Sketcher.Constraint("Coincident", 56, 3, 51, 3))
sketch8.addConstraint(Sketcher.Constraint("Coincident", 57, 3, 41, 3))
sketch8.addConstraint(Sketcher.Constraint("Coincident", 58, 3, 49, 3))
sketch8.addConstraint(Sketcher.Constraint("Coincident", 59, 3, 43, 3))
sketch8.addConstraint(Sketcher.Constraint("Equal", 1, 3))
sketch8.addConstraint(Sketcher.Constraint("Equal", 5, 7))
sketch8.addConstraint(Sketcher.Constraint("Equal", 3, 9))
sketch8.addConstraint(Sketcher.Constraint("Equal", 9, 11))
sketch8.addConstraint(Sketcher.Constraint("Equal", 7, 13))
sketch8.addConstraint(Sketcher.Constraint("Equal", 13, 15))
sketch8.addConstraint(Sketcher.Constraint("Equal", 16, 17))
sketch8.addConstraint(Sketcher.Constraint("Equal", 17, 18))
sketch8.addConstraint(Sketcher.Constraint("Equal", 18, 19))
sketch8.addConstraint(Sketcher.Constraint("Equal", 11, 20))
sketch8.addConstraint(Sketcher.Constraint("Equal", 20, 22))
sketch8.addConstraint(Sketcher.Constraint("Equal", 15, 24))
sketch8.addConstraint(Sketcher.Constraint("Equal", 24, 26))
sketch8.addConstraint(Sketcher.Constraint("Equal", 22, 28))
sketch8.addConstraint(Sketcher.Constraint("Equal", 28, 30))
sketch8.addConstraint(Sketcher.Constraint("Equal", 26, 32))
sketch8.addConstraint(Sketcher.Constraint("Equal", 32, 34))
sketch8.addConstraint(Sketcher.Constraint("Equal", 19, 36))
sketch8.addConstraint(Sketcher.Constraint("Equal", 36, 37))
sketch8.addConstraint(Sketcher.Constraint("Equal", 37, 38))
sketch8.addConstraint(Sketcher.Constraint("Equal", 38, 39))
sketch8.addConstraint(Sketcher.Constraint("Equal", 30, 41))
sketch8.addConstraint(Sketcher.Constraint("Equal", 41, 43))
sketch8.addConstraint(Sketcher.Constraint("Equal", 34, 45))
sketch8.addConstraint(Sketcher.Constraint("Equal", 45, 47))
sketch8.addConstraint(Sketcher.Constraint("Equal", 43, 49))
sketch8.addConstraint(Sketcher.Constraint("Equal", 49, 51))
sketch8.addConstraint(Sketcher.Constraint("Equal", 47, 53))
sketch8.addConstraint(Sketcher.Constraint("Equal", 53, 55))
sketch8.addConstraint(Sketcher.Constraint("Equal", 39, 56))
sketch8.addConstraint(Sketcher.Constraint("Equal", 56, 57))
sketch8.addConstraint(Sketcher.Constraint("Equal", 57, 58))
sketch8.addConstraint(Sketcher.Constraint("Equal", 58, 59))
sketch8.addConstraint(Sketcher.Constraint("Vertical", 3, 3, 9, 3))
sketch8.addConstraint(Sketcher.Constraint("Vertical", 1, 3, 11, 3))
sketch8.addConstraint(Sketcher.Constraint("Vertical", 17, 3, 20, 3))
sketch8.addConstraint(Sketcher.Constraint("Vertical", 19, 3, 22, 3))
sketch8.addConstraint(Sketcher.Constraint("Vertical", 7, 3, 24, 3))
sketch8.addConstraint(Sketcher.Constraint("Vertical", 22, 3, 28, 3))
sketch8.addConstraint(Sketcher.Constraint("Vertical", 20, 3, 30, 3))
sketch8.addConstraint(Sketcher.Constraint("Vertical", 15, 3, 32, 3))
sketch8.addConstraint(Sketcher.Constraint("Vertical", 37, 3, 41, 3))
sketch8.addConstraint(Sketcher.Constraint("Vertical", 39, 3, 43, 3))
sketch8.addConstraint(Sketcher.Constraint("Vertical", 26, 3, 45, 3))
sketch8.addConstraint(Sketcher.Constraint("Vertical", 43, 3, 49, 3))
sketch8.addConstraint(Sketcher.Constraint("Vertical", 41, 3, 51, 3))
sketch8.addConstraint(Sketcher.Constraint("Vertical", 34, 3, 53, 3))
sketch8.addConstraint(Sketcher.Constraint("Equal", 0, 4))
sketch8.addConstraint(Sketcher.Constraint("Equal", 14, 25))
sketch8.addConstraint(Sketcher.Constraint("Equal", 33, 46))
sketch8.addConstraint(Sketcher.Constraint("Radius", 1, Q("5 mm")))
sketch8.addConstraint(Sketcher.Constraint("Radius", 5, Q("1 mm")))
sketch8.addConstraint(Sketcher.Constraint("Diameter", 16, Q("1.6 mm")))
sketch8.addConstraint(Sketcher.Constraint("DistanceX", 0, 2, 0, 1, Q("1 mm")))
sketch8.addConstraint(Sketcher.Constraint("DistanceX", 2, 1, 2, 2, Q("14 mm")))
sketch8.addConstraint(Sketcher.Constraint("DistanceY", 6, 1, 6, 2, Q("8 mm")))
sketch8.addConstraint(Sketcher.Constraint("DistanceX", -1, 1, 1, 3, Q("5.979459 mm")))
sketch8.addConstraint(Sketcher.Constraint("DistanceY", -1, 1, 1, 3, Q("96.543307 mm")))
sketch8.addConstraint(Sketcher.Constraint("DistanceY", 20, 3, -1, 1, Q("51.456693 mm")))
sketch8.addConstraint(Sketcher.Constraint("DistanceY", -1, 1, 41, 3, Q("22.543307 mm")))
pocket3 = body.newObject("PartDesign::Pocket", "Pocket002")
pocket3.Profile = sketch8
pocket3.Length = 5
pocket3.Reversed = True

doc.recompute()
